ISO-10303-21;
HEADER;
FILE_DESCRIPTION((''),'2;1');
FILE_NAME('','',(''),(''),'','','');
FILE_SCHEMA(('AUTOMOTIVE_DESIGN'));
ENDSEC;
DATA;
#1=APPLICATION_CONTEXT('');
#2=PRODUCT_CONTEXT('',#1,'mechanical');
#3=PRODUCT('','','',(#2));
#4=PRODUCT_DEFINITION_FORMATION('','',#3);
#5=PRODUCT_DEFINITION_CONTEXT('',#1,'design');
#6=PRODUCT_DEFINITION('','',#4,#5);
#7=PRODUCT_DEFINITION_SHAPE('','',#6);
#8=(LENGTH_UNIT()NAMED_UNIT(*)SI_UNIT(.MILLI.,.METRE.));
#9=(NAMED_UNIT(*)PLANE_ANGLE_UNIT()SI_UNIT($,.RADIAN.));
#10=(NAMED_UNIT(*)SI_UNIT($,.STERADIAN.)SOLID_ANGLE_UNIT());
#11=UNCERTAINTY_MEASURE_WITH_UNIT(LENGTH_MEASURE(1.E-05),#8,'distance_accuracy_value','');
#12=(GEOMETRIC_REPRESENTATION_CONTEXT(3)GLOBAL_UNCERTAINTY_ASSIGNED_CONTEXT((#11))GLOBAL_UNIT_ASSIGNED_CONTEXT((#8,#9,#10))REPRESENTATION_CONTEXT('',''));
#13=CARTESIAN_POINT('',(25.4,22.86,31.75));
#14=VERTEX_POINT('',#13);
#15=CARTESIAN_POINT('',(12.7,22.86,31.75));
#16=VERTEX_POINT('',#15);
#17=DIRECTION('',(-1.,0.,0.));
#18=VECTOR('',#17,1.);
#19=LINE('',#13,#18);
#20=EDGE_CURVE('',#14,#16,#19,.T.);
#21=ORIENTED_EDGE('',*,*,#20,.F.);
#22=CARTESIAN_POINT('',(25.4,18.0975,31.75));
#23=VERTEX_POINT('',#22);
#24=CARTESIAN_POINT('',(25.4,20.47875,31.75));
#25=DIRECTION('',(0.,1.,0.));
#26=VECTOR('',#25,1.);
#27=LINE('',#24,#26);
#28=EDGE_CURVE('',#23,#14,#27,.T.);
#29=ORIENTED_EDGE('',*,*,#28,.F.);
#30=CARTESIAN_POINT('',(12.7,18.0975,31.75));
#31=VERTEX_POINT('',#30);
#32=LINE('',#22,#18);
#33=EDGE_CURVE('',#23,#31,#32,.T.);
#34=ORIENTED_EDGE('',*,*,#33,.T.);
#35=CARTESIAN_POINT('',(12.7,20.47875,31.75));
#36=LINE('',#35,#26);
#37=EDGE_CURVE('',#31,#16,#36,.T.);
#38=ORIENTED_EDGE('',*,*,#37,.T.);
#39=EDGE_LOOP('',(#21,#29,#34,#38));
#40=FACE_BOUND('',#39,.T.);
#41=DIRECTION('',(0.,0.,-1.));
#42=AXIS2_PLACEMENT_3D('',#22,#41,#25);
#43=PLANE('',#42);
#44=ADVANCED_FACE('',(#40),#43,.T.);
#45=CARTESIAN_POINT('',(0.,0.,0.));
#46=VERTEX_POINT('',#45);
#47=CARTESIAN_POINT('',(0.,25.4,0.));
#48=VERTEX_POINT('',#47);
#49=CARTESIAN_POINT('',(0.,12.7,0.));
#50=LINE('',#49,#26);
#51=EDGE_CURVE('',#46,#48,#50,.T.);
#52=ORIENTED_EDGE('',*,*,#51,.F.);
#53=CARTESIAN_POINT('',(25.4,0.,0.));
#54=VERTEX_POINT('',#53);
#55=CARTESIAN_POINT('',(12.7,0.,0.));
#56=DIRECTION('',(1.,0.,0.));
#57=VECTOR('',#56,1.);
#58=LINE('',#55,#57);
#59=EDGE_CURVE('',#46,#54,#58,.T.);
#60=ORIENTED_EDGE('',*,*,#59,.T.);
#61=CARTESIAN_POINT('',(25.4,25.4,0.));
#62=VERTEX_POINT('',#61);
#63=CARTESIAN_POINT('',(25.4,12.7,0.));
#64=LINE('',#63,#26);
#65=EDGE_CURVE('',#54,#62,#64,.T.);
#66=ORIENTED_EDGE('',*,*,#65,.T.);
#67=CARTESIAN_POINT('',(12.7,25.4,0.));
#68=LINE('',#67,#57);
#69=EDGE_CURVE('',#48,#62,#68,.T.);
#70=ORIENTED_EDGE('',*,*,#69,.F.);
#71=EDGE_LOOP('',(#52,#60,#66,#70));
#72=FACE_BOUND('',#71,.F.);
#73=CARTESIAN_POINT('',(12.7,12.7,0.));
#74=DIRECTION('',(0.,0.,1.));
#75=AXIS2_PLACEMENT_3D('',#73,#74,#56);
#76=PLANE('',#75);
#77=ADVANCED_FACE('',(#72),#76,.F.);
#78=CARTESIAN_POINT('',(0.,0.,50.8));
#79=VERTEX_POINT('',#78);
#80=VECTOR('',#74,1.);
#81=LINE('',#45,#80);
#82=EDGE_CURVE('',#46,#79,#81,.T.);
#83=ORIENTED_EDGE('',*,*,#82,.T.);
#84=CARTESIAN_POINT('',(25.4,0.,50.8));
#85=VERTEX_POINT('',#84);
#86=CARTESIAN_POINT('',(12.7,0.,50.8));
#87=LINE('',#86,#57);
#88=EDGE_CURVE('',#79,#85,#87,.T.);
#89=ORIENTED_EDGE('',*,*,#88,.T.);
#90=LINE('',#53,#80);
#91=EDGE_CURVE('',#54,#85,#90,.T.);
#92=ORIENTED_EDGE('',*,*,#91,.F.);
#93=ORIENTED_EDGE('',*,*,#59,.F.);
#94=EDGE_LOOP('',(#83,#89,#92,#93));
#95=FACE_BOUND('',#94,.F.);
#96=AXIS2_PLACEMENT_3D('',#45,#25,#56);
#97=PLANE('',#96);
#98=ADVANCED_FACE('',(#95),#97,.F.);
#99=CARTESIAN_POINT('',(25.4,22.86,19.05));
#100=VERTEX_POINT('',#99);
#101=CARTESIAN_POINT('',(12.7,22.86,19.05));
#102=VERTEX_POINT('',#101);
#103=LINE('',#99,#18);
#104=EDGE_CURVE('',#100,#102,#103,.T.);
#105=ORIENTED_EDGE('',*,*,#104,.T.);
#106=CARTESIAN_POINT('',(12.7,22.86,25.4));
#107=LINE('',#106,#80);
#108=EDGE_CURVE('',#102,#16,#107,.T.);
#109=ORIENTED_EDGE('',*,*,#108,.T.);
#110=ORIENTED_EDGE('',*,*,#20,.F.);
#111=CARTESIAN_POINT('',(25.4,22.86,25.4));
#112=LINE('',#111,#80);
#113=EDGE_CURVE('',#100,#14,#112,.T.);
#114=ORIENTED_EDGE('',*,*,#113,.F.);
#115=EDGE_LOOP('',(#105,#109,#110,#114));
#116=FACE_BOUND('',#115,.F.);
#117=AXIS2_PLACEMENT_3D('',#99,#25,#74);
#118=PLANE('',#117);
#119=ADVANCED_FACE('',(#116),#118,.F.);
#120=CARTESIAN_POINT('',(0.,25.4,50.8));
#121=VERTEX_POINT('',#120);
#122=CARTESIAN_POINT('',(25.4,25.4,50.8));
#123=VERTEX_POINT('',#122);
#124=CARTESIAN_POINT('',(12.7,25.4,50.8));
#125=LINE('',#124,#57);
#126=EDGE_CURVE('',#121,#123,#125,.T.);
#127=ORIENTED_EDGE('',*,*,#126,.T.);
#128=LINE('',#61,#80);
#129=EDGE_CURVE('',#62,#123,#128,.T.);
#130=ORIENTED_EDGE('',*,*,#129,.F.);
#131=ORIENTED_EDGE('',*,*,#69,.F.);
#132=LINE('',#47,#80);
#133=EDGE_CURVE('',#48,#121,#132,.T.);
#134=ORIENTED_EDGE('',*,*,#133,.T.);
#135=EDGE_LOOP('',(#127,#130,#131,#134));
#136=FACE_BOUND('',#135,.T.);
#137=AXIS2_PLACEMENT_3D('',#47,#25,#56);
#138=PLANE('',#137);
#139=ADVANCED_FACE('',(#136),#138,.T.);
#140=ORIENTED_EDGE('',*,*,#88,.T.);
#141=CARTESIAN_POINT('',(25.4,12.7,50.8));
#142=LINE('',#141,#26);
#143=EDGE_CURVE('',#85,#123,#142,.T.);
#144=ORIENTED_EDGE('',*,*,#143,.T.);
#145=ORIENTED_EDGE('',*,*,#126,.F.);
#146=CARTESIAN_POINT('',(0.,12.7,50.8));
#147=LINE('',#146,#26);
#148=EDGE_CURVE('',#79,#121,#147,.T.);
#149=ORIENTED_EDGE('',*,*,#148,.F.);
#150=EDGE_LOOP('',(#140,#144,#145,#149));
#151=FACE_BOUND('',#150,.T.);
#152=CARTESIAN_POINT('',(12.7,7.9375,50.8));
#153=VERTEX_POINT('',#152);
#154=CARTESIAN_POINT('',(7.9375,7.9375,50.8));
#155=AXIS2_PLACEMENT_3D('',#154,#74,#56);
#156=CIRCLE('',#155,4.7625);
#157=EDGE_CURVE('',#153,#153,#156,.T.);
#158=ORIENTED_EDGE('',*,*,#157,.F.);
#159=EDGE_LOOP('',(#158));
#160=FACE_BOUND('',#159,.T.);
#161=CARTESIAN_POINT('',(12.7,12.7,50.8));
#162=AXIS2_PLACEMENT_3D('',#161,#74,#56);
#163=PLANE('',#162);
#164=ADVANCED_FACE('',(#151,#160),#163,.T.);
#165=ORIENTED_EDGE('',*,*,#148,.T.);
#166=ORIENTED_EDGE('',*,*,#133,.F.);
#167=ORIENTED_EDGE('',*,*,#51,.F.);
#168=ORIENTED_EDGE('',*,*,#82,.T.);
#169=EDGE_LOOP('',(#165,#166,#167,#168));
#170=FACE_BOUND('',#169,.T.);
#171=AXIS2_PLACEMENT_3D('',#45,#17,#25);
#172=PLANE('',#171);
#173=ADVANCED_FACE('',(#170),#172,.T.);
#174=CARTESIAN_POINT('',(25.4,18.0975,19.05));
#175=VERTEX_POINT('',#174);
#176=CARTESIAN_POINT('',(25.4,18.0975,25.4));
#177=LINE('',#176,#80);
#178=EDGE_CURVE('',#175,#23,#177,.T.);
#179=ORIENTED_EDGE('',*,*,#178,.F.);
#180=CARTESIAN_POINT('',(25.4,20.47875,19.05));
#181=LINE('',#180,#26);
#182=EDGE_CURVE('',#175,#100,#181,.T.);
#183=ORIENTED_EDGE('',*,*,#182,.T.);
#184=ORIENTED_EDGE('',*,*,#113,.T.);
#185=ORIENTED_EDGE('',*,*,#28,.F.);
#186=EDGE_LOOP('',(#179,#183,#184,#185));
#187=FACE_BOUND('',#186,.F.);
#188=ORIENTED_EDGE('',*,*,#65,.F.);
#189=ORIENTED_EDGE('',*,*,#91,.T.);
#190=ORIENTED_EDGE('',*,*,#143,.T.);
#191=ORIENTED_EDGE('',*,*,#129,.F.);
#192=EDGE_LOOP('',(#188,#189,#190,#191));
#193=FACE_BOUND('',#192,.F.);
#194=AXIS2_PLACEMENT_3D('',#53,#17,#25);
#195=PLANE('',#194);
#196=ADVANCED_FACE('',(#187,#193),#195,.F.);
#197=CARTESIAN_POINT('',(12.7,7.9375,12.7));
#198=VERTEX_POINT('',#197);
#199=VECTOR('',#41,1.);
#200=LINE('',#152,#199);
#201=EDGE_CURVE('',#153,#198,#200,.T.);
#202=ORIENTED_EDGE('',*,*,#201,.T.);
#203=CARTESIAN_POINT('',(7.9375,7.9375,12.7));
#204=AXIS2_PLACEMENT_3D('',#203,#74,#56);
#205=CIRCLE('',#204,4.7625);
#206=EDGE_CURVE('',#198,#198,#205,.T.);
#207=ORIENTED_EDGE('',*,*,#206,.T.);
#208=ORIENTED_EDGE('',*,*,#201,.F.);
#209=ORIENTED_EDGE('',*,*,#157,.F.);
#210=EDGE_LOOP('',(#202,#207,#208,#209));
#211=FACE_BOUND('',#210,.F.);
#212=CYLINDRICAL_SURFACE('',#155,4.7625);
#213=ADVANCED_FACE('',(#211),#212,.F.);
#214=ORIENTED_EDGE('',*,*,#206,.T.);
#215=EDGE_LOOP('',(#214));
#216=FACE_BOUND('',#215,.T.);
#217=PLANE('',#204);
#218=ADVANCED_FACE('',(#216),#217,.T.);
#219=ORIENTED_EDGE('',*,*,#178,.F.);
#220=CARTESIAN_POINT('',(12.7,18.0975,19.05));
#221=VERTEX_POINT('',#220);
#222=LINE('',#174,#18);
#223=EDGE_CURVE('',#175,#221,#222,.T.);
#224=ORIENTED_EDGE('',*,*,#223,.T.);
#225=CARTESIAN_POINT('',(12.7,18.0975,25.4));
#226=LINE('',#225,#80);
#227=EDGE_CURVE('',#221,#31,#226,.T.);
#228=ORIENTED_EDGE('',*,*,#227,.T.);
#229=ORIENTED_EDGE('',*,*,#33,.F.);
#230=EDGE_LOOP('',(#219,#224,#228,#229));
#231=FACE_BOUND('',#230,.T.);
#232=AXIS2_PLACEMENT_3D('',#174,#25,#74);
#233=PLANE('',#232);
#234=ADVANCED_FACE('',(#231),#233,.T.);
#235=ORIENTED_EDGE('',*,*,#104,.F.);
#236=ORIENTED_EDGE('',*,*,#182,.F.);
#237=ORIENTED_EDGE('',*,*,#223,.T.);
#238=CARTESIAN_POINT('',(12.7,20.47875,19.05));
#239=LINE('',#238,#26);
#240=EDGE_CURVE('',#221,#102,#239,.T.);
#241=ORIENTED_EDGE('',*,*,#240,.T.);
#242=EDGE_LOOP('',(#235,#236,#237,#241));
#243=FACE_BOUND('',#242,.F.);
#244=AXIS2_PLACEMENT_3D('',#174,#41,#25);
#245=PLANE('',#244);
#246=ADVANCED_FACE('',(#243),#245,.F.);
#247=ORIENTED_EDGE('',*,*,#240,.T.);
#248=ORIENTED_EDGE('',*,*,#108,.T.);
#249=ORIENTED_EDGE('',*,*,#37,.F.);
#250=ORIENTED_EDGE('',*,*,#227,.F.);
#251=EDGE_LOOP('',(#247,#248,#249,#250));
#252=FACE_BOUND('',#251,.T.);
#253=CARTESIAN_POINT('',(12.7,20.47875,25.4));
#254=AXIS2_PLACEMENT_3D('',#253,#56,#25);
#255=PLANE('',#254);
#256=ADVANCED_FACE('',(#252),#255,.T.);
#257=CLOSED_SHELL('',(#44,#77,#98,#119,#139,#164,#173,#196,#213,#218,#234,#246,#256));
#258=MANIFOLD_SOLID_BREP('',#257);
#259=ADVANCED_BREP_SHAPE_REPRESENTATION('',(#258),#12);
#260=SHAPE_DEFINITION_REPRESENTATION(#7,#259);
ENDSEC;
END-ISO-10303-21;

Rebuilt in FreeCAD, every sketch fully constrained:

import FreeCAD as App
import Part
import Sketcher

V = App.Vector
Q = App.Units.Quantity

doc = App.newDocument("Part")
body = doc.addObject("PartDesign::Body", "Body")

sketch1 = body.newObject("Sketcher::SketchObject", "Sketch")
sketch1.AttachmentSupport = (doc.getObject("XY_Plane"), [""])
sketch1.MapMode = "FlatFace"
sketch1.addGeometry([
    Part.LineSegment(V(0, 25.4, 0), V(0, 0, 0)),
    Part.LineSegment(V(0, 0, 0), V(25.4, 0, 0)),
    Part.LineSegment(V(25.4, 0, 0), V(25.4, 25.4, 0)),
    Part.LineSegment(V(25.4, 25.4, 0), V(0, 25.4, 0)),
], False)
sketch1.addConstraint([
    Sketcher.Constraint("Coincident", 0, 2, 1, 1),
    Sketcher.Constraint("Coincident", 1, 2, 2, 1),
    Sketcher.Constraint("Coincident", 2, 2, 3, 1),
    Sketcher.Constraint("Coincident", 3, 2, 0, 1),
    Sketcher.Constraint("Vertical", 0),
    Sketcher.Constraint("Horizontal", 1),
    Sketcher.Constraint("Vertical", 2),
    Sketcher.Constraint("Horizontal", 3),
    Sketcher.Constraint("Coincident", 0, 2, -1, 1),
    Sketcher.Constraint("Equal", 3, 0),
    Sketcher.Constraint("DistanceX", 1, 1, 1, 2, Q("1 in")),
])
pad1 = body.newObject("PartDesign::Pad", "Pad")
pad1.Profile = sketch1
pad1.Length = Q("2 in")

sketch2 = body.newObject("Sketcher::SketchObject", "Sketch001")
sketch2.AttachmentSupport = (doc.getObject("XY_Plane"), [""])
sketch2.MapMode = "FlatFace"
sketch2.AttachmentOffset = App.Placement(V(0, 0, 2 * 25.4), App.Rotation())
sketch2.addGeometry(Part.Circle(V(7.9375, 7.9375, 0), V(0, 0, 1), 4.7625), False)
sketch2.addConstraint([
    Sketcher.Constraint("Diameter", 0, Q("0.375 in")),
    Sketcher.Constraint("DistanceX", -1, 1, 0, 3, Q("0.3125 in")),
    Sketcher.Constraint("DistanceY", -1, 1, 0, 3, Q("0.3125 in")),
])
pocket1 = body.newObject("PartDesign::Pocket", "Pocket")
pocket1.Profile = sketch2
pocket1.Length = Q("1.5 in")

sketch3 = body.newObject("Sketcher::SketchObject", "Sketch002")
sketch3.AttachmentSupport = (doc.getObject("YZ_Plane"), [""])
sketch3.MapMode = "FlatFace"
sketch3.AttachmentOffset = App.Placement(V(0, 0, 1 * 25.4), App.Rotation())
sketch3.addGeometry([
    Part.LineSegment(V(18.0975, 31.75, 0), V(18.0975, 19.05, 0)),
    Part.LineSegment(V(18.0975, 19.05, 0), V(22.86, 19.05, 0)),
    Part.LineSegment(V(22.86, 19.05, 0), V(22.86, 31.75, 0)),
    Part.LineSegment(V(22.86, 31.75, 0), V(18.0975, 31.75, 0)),
], False)
sketch3.addConstraint([
    Sketcher.Constraint("Coincident", 0, 2, 1, 1),
    Sketcher.Constraint("Coincident", 1, 2, 2, 1),
    Sketcher.Constraint("Coincident", 2, 2, 3, 1),
    Sketcher.Constraint("Coincident", 3, 2, 0, 1),
    Sketcher.Constraint("Vertical", 0),
    Sketcher.Constraint("Horizontal", 1),
    Sketcher.Constraint("Vertical", 2),
    Sketcher.Constraint("Horizontal", 3),
    Sketcher.Constraint("DistanceY", 0, 2, 0, 1, Q("0.5 in")),
    Sketcher.Constraint("DistanceX", -1, 1, 1, 2, Q("0.9 in")),
    Sketcher.Constraint("DistanceX", 1, 1, 1, 2, Q("0.1875 in")),
    Sketcher.Constraint("DistanceY", -1, 1, 0, 2, Q("0.75 in")),
])
pocket2 = body.newObject("PartDesign::Pocket", "Pocket001")
pocket2.Profile = sketch3
pocket2.Length = Q("0.5 in")

doc.recompute()
